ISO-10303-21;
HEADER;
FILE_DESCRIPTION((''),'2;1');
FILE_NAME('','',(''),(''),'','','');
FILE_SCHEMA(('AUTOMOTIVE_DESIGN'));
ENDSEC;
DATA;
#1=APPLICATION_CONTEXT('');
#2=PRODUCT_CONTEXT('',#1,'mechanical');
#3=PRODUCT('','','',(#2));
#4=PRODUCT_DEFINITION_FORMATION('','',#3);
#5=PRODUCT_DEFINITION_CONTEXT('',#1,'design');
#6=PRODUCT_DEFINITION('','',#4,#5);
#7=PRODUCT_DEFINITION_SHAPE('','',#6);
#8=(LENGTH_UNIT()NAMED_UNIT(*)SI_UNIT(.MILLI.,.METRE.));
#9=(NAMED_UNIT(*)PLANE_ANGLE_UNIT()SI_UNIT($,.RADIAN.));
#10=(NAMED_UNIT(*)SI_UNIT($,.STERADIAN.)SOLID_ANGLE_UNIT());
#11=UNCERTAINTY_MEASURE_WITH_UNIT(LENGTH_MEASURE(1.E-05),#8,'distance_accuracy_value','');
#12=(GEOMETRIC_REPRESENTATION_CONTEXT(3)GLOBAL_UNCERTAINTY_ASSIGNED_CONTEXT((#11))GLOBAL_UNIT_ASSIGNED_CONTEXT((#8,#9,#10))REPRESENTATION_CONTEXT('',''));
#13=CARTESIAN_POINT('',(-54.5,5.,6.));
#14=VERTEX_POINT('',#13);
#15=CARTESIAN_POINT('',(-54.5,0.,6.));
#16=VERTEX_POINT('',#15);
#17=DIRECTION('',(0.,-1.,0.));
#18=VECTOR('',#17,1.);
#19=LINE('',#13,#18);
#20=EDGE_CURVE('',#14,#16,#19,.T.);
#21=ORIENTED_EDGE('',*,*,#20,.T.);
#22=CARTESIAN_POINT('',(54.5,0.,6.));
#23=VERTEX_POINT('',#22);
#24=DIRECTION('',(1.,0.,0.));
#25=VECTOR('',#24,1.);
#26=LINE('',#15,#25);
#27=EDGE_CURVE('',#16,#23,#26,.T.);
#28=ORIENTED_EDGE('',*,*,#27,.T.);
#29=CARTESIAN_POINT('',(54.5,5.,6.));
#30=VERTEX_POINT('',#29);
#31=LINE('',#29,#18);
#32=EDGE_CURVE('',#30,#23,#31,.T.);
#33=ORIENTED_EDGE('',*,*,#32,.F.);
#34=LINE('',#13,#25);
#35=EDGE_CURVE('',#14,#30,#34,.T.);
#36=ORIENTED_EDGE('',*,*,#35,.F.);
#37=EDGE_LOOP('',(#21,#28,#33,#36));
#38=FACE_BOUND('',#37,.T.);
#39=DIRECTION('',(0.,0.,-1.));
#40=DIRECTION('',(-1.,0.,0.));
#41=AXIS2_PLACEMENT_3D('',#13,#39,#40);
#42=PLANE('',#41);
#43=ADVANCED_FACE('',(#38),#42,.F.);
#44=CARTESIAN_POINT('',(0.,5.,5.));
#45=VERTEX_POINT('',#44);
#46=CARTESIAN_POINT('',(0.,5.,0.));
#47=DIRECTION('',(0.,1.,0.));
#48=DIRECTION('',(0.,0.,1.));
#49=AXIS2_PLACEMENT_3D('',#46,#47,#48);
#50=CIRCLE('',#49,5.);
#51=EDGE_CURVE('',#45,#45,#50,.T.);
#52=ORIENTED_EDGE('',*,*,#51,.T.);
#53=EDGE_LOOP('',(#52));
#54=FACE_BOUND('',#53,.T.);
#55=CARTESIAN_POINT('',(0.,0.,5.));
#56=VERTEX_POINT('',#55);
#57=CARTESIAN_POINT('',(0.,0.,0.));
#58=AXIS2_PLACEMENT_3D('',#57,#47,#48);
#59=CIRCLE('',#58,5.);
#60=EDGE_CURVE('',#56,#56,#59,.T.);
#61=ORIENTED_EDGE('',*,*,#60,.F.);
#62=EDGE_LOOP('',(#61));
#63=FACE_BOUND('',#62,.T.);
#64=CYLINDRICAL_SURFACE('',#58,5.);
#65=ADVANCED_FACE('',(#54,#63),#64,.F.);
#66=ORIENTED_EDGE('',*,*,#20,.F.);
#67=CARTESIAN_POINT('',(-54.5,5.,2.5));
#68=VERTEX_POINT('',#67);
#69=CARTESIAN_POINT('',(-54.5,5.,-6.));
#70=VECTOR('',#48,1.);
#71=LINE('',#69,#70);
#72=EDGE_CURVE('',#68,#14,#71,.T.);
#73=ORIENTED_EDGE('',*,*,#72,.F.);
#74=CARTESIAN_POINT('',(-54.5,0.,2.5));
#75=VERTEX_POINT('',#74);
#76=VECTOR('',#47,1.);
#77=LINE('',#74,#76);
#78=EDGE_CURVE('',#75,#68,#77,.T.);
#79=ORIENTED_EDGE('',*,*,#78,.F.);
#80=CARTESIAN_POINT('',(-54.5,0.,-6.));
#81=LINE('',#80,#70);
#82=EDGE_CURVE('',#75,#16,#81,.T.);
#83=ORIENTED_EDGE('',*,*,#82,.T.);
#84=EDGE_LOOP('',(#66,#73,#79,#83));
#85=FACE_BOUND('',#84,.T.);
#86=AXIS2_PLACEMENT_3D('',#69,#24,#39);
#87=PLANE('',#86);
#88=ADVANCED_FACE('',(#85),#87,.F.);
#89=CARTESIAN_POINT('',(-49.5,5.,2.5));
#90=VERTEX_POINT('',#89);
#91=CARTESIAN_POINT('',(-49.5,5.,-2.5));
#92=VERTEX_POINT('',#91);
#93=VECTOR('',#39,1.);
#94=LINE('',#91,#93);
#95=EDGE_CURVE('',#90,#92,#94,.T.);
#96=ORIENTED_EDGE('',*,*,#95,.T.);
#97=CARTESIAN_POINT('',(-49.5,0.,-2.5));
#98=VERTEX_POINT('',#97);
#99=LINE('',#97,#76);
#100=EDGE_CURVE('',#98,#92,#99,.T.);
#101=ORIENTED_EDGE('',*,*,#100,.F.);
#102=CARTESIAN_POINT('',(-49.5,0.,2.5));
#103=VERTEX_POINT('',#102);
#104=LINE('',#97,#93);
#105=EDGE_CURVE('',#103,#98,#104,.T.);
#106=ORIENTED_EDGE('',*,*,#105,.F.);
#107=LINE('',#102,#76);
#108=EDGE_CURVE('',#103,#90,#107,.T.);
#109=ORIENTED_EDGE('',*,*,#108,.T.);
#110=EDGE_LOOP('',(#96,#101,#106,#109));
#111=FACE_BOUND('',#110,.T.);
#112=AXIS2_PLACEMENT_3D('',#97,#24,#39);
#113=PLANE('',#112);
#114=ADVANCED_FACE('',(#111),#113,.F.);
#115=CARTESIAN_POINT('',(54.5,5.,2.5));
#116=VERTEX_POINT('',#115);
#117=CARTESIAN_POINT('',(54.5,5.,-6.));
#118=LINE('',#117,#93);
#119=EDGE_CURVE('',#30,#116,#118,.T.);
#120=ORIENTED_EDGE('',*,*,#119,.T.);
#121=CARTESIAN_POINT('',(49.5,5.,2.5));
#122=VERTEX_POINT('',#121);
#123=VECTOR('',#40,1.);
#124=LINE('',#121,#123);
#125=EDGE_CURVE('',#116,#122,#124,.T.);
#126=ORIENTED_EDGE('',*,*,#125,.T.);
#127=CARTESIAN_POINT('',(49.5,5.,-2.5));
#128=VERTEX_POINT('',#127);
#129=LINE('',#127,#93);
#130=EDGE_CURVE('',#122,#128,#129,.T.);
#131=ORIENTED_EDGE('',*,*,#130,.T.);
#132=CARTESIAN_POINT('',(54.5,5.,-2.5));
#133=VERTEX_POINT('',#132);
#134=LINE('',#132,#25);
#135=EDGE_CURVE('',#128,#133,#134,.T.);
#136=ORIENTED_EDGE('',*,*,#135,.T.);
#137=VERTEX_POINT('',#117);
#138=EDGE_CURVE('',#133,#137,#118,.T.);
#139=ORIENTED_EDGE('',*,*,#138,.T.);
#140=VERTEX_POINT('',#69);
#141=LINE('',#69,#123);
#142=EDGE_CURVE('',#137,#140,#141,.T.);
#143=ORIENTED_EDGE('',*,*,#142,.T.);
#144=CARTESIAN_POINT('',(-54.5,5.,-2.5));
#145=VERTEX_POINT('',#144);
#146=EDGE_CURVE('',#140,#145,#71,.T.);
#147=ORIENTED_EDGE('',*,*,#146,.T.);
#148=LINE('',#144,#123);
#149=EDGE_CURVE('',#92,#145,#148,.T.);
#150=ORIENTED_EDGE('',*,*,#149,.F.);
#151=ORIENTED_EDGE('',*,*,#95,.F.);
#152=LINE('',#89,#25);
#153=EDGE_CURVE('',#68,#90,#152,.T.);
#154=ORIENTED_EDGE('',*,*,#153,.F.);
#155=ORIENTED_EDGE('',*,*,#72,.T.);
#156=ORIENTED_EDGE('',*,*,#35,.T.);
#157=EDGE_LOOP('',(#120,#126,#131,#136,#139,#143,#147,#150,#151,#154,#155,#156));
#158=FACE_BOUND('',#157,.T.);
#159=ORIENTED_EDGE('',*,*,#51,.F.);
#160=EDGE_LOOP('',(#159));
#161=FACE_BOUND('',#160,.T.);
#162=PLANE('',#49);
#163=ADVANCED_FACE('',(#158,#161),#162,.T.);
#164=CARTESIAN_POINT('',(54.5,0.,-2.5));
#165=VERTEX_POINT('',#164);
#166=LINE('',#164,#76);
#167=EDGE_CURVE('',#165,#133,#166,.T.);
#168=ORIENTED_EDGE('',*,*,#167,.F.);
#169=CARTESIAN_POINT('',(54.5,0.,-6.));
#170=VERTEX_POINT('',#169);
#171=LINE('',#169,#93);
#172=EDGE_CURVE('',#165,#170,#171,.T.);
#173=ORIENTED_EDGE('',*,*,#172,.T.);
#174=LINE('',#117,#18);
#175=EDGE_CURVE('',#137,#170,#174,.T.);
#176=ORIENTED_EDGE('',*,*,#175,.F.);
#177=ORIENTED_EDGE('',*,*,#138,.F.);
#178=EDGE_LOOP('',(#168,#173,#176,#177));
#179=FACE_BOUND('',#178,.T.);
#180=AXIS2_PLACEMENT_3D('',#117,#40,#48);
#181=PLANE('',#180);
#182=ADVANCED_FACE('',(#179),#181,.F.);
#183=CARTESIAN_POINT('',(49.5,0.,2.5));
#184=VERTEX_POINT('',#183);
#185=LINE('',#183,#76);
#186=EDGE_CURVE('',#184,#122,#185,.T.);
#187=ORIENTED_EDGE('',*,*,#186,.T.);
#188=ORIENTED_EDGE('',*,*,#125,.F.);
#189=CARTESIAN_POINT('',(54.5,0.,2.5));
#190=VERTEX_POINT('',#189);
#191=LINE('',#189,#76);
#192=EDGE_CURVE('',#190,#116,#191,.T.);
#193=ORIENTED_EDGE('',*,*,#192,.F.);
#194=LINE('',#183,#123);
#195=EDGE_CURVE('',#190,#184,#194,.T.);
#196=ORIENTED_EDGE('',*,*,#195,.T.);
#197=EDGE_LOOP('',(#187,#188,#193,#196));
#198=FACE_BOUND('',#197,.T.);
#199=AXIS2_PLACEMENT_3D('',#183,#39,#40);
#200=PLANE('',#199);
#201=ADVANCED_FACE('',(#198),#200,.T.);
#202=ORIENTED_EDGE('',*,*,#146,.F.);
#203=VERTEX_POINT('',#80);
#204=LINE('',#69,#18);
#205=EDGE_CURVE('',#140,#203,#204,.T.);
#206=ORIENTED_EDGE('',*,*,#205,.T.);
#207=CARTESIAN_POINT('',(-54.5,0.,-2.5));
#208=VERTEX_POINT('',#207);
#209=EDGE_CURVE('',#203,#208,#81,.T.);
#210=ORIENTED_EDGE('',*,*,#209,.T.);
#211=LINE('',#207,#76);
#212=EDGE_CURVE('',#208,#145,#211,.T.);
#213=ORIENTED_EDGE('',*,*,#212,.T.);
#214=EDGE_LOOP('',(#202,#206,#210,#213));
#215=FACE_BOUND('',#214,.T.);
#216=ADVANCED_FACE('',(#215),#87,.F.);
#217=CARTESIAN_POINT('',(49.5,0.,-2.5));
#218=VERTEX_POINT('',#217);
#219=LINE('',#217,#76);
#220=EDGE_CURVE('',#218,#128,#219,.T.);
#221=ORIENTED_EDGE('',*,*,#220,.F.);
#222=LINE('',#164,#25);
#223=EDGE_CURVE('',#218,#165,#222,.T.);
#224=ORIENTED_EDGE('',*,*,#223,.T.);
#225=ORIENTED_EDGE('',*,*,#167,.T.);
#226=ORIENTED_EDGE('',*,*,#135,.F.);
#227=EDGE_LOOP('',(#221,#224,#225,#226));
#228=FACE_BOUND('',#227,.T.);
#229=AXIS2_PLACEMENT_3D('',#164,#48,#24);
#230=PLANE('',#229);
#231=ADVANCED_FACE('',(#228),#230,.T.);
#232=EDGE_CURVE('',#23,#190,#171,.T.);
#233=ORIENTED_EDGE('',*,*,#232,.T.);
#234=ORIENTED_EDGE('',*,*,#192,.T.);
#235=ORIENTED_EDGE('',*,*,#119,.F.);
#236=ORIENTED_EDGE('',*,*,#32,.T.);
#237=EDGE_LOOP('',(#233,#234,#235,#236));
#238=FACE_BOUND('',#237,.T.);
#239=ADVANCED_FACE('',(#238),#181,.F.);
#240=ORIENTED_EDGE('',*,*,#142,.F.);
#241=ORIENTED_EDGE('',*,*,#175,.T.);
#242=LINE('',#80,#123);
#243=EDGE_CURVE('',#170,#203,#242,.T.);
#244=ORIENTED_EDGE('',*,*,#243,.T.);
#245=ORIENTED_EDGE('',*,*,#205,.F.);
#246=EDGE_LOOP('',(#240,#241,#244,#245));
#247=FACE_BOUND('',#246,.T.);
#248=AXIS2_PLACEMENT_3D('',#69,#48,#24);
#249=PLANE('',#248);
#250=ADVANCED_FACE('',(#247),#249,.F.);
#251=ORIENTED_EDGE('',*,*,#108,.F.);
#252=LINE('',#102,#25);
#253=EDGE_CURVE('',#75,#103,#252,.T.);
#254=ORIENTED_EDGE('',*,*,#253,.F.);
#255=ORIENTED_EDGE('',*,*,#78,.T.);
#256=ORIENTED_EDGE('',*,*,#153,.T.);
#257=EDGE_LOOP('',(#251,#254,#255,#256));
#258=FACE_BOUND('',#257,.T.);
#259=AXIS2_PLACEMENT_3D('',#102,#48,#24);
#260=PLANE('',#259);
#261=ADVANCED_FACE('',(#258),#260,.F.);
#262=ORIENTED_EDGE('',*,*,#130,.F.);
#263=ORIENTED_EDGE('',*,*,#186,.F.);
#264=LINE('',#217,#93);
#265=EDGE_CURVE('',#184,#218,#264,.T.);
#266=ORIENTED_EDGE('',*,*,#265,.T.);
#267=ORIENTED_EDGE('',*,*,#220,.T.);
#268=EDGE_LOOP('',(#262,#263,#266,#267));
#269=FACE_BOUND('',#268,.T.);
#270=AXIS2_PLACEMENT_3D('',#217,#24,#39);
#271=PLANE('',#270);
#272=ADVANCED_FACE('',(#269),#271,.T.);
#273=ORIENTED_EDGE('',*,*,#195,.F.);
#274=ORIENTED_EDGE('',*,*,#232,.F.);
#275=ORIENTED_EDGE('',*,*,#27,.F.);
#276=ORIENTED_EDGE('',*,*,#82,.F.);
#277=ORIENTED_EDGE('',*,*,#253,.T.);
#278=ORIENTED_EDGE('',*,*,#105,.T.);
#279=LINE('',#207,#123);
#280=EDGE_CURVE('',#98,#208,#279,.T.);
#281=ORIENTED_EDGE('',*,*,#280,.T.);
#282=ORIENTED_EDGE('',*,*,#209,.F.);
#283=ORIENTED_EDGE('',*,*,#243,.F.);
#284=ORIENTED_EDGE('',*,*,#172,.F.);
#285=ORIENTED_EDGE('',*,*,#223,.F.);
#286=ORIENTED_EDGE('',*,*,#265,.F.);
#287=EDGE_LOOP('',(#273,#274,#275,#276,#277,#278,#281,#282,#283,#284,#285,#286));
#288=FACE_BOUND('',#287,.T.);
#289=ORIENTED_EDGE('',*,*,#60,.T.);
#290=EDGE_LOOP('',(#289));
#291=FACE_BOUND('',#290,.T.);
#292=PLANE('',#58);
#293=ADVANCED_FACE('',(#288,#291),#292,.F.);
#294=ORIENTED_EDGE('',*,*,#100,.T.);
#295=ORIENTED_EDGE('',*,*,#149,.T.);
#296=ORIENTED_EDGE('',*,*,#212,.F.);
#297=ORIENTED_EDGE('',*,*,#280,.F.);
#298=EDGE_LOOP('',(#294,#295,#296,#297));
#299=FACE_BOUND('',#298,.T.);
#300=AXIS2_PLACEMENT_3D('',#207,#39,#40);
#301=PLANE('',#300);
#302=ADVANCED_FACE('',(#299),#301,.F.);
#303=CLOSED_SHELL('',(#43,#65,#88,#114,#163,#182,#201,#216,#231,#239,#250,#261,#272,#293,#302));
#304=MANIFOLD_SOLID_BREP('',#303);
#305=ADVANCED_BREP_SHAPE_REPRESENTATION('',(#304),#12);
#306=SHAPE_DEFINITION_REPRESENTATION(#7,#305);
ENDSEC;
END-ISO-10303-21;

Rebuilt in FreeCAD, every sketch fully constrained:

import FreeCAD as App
import Part
import Sketcher
from FreeCAD import Vector

doc = App.newDocument("Part")
params = doc.addObject("Spreadsheet::Sheet", "Params")
for row, (alias, value) in enumerate([
    ("sketch1_width", "109 mm"),
    ("sketch1_height", "12 mm"),
    ("pad1_length", "5 mm"),
    ("sketch2_diameter", "10 mm"),
    ("sketch3_width", "5 mm"),
], start=1):
    params.set(f"A{row}", alias)
    params.set(f"B{row}", "=" + value)
    params.setAlias(f"B{row}", alias)

body = doc.addObject("PartDesign::Body", "Body")

# Sketch on XZ plane
sketch1 = doc.addObject("Sketcher::SketchObject", "Sketch")
body.addObject(sketch1)
sketch1.AttachmentSupport = (doc.XZ_Plane, [""])
sketch1.MapMode = "FlatFace"
sketch1.addGeometry([
    Part.LineSegment(Vector(-54.5, -6, 0), Vector(-54.5, 6, 0)),
    Part.LineSegment(Vector(-54.5, 6, 0), Vector(54.5, 6, 0)),
    Part.LineSegment(Vector(54.5, 6, 0), Vector(54.5, -6, 0)),
    Part.LineSegment(Vector(54.5, -6, 0), Vector(-54.5, -6, 0)),
], False)
sketch1.addConstraint([
    Sketcher.Constraint("Coincident", 0, 2, 1, 1),
    Sketcher.Constraint("Coincident", 1, 2, 2, 1),
    Sketcher.Constraint("Coincident", 2, 2, 3, 1),
    Sketcher.Constraint("Coincident", 3, 2, 0, 1),
    Sketcher.Constraint("Vertical", 0),
    Sketcher.Constraint("Horizontal", 1),
    Sketcher.Constraint("Vertical", 2),
    Sketcher.Constraint("Horizontal", 3),
    Sketcher.Constraint("Symmetric", 0, 2, 2, 2, -1, 1),
    Sketcher.Constraint("DistanceX", 1, 1, 1, 2, 109.0),
    Sketcher.Constraint("DistanceY", 0, 1, 0, 2, 12.0),
])
sketch1.setExpression("Constraints[9]", "Params.sketch1_width")
sketch1.setExpression("Constraints[10]", "Params.sketch1_height")
pad1 = doc.addObject("PartDesign::Pad", "Pad")
body.addObject(pad1)
pad1.Profile = sketch1
pad1.setExpression("Length", "Params.pad1_length")
pad1.Reversed = True

# Sketch on XZ plane
sketch2 = doc.addObject("Sketcher::SketchObject", "Sketch001")
body.addObject(sketch2)
sketch2.AttachmentSupport = (doc.XZ_Plane, [""])
sketch2.MapMode = "FlatFace"
sketch2.AttachmentOffset = App.Placement(Vector(0, 0, -5), App.Rotation())
sketch2.addGeometry(Part.Circle(Vector(0, 0, 0), Vector(0, 0, 1), 5), False)
sketch2.addConstraint([
    Sketcher.Constraint("Coincident", 0, 3, -1, 1),
    Sketcher.Constraint("Diameter", 0, 10.0),
])
sketch2.setExpression("Constraints[1]", "Params.sketch2_diameter")
pocket1 = doc.addObject("PartDesign::Pocket", "Pocket")
body.addObject(pocket1)
pocket1.Profile = sketch2
pocket1.Type = "ThroughAll"
pocket1.Reversed = True

# Sketch on XZ plane
sketch3 = doc.addObject("Sketcher::SketchObject", "Sketch002")
body.addObject(sketch3)
sketch3.AttachmentSupport = (doc.XZ_Plane, [""])
sketch3.MapMode = "FlatFace"
sketch3.AttachmentOffset = App.Placement(Vector(0, 0, -5), App.Rotation())
sketch3.addGeometry([
    Part.LineSegment(Vector(-54.5, -2.5, 0), Vector(-54.5, 2.5, 0)),
    Part.LineSegment(Vector(-54.5, 2.5, 0), Vector(-49.5, 2.5, 0)),
    Part.LineSegment(Vector(-49.5, 2.5, 0), Vector(-49.5, -2.5, 0)),
    Part.LineSegment(Vector(-49.5, -2.5, 0), Vector(-54.5, -2.5, 0)),
], False)
sketch3.addConstraint([
    Sketcher.Constraint("Coincident", 0, 2, 1, 1),
    Sketcher.Constraint("Coincident", 1, 2, 2, 1),
    Sketcher.Constraint("Coincident", 2, 2, 3, 1),
    Sketcher.Constraint("Coincident", 3, 2, 0, 1),
    Sketcher.Constraint("Vertical", 0),
    Sketcher.Constraint("Horizontal", 1),
    Sketcher.Constraint("Vertical", 2),
    Sketcher.Constraint("Horizontal", 3),
    Sketcher.Constraint("Equal", 3, 0),
    Sketcher.Constraint("DistanceX", 1, 1, 1, 2, 5.0),
    Sketcher.Constraint("DistanceX", 0, 2, -1, 1, 54.5),
    Sketcher.Constraint("DistanceY", -1, 1, 0, 2, 2.5),
])
sketch3.setExpression("Constraints[9]", "Params.sketch3_width")
pocket2 = doc.addObject("PartDesign::Pocket", "Pocket001")
body.addObject(pocket2)
pocket2.Profile = sketch3
pocket2.Type = "ThroughAll"
pocket2.Reversed = True
doc.recompute()

mirrored = doc.addObject("PartDesign::Mirrored", "Mirrored")
body.addObject(mirrored)
mirrored.Originals = [pocket2]
mirrored.MirrorPlane = (doc.YZ_Plane, [""])
body.Tip = mirrored

doc.recompute()
